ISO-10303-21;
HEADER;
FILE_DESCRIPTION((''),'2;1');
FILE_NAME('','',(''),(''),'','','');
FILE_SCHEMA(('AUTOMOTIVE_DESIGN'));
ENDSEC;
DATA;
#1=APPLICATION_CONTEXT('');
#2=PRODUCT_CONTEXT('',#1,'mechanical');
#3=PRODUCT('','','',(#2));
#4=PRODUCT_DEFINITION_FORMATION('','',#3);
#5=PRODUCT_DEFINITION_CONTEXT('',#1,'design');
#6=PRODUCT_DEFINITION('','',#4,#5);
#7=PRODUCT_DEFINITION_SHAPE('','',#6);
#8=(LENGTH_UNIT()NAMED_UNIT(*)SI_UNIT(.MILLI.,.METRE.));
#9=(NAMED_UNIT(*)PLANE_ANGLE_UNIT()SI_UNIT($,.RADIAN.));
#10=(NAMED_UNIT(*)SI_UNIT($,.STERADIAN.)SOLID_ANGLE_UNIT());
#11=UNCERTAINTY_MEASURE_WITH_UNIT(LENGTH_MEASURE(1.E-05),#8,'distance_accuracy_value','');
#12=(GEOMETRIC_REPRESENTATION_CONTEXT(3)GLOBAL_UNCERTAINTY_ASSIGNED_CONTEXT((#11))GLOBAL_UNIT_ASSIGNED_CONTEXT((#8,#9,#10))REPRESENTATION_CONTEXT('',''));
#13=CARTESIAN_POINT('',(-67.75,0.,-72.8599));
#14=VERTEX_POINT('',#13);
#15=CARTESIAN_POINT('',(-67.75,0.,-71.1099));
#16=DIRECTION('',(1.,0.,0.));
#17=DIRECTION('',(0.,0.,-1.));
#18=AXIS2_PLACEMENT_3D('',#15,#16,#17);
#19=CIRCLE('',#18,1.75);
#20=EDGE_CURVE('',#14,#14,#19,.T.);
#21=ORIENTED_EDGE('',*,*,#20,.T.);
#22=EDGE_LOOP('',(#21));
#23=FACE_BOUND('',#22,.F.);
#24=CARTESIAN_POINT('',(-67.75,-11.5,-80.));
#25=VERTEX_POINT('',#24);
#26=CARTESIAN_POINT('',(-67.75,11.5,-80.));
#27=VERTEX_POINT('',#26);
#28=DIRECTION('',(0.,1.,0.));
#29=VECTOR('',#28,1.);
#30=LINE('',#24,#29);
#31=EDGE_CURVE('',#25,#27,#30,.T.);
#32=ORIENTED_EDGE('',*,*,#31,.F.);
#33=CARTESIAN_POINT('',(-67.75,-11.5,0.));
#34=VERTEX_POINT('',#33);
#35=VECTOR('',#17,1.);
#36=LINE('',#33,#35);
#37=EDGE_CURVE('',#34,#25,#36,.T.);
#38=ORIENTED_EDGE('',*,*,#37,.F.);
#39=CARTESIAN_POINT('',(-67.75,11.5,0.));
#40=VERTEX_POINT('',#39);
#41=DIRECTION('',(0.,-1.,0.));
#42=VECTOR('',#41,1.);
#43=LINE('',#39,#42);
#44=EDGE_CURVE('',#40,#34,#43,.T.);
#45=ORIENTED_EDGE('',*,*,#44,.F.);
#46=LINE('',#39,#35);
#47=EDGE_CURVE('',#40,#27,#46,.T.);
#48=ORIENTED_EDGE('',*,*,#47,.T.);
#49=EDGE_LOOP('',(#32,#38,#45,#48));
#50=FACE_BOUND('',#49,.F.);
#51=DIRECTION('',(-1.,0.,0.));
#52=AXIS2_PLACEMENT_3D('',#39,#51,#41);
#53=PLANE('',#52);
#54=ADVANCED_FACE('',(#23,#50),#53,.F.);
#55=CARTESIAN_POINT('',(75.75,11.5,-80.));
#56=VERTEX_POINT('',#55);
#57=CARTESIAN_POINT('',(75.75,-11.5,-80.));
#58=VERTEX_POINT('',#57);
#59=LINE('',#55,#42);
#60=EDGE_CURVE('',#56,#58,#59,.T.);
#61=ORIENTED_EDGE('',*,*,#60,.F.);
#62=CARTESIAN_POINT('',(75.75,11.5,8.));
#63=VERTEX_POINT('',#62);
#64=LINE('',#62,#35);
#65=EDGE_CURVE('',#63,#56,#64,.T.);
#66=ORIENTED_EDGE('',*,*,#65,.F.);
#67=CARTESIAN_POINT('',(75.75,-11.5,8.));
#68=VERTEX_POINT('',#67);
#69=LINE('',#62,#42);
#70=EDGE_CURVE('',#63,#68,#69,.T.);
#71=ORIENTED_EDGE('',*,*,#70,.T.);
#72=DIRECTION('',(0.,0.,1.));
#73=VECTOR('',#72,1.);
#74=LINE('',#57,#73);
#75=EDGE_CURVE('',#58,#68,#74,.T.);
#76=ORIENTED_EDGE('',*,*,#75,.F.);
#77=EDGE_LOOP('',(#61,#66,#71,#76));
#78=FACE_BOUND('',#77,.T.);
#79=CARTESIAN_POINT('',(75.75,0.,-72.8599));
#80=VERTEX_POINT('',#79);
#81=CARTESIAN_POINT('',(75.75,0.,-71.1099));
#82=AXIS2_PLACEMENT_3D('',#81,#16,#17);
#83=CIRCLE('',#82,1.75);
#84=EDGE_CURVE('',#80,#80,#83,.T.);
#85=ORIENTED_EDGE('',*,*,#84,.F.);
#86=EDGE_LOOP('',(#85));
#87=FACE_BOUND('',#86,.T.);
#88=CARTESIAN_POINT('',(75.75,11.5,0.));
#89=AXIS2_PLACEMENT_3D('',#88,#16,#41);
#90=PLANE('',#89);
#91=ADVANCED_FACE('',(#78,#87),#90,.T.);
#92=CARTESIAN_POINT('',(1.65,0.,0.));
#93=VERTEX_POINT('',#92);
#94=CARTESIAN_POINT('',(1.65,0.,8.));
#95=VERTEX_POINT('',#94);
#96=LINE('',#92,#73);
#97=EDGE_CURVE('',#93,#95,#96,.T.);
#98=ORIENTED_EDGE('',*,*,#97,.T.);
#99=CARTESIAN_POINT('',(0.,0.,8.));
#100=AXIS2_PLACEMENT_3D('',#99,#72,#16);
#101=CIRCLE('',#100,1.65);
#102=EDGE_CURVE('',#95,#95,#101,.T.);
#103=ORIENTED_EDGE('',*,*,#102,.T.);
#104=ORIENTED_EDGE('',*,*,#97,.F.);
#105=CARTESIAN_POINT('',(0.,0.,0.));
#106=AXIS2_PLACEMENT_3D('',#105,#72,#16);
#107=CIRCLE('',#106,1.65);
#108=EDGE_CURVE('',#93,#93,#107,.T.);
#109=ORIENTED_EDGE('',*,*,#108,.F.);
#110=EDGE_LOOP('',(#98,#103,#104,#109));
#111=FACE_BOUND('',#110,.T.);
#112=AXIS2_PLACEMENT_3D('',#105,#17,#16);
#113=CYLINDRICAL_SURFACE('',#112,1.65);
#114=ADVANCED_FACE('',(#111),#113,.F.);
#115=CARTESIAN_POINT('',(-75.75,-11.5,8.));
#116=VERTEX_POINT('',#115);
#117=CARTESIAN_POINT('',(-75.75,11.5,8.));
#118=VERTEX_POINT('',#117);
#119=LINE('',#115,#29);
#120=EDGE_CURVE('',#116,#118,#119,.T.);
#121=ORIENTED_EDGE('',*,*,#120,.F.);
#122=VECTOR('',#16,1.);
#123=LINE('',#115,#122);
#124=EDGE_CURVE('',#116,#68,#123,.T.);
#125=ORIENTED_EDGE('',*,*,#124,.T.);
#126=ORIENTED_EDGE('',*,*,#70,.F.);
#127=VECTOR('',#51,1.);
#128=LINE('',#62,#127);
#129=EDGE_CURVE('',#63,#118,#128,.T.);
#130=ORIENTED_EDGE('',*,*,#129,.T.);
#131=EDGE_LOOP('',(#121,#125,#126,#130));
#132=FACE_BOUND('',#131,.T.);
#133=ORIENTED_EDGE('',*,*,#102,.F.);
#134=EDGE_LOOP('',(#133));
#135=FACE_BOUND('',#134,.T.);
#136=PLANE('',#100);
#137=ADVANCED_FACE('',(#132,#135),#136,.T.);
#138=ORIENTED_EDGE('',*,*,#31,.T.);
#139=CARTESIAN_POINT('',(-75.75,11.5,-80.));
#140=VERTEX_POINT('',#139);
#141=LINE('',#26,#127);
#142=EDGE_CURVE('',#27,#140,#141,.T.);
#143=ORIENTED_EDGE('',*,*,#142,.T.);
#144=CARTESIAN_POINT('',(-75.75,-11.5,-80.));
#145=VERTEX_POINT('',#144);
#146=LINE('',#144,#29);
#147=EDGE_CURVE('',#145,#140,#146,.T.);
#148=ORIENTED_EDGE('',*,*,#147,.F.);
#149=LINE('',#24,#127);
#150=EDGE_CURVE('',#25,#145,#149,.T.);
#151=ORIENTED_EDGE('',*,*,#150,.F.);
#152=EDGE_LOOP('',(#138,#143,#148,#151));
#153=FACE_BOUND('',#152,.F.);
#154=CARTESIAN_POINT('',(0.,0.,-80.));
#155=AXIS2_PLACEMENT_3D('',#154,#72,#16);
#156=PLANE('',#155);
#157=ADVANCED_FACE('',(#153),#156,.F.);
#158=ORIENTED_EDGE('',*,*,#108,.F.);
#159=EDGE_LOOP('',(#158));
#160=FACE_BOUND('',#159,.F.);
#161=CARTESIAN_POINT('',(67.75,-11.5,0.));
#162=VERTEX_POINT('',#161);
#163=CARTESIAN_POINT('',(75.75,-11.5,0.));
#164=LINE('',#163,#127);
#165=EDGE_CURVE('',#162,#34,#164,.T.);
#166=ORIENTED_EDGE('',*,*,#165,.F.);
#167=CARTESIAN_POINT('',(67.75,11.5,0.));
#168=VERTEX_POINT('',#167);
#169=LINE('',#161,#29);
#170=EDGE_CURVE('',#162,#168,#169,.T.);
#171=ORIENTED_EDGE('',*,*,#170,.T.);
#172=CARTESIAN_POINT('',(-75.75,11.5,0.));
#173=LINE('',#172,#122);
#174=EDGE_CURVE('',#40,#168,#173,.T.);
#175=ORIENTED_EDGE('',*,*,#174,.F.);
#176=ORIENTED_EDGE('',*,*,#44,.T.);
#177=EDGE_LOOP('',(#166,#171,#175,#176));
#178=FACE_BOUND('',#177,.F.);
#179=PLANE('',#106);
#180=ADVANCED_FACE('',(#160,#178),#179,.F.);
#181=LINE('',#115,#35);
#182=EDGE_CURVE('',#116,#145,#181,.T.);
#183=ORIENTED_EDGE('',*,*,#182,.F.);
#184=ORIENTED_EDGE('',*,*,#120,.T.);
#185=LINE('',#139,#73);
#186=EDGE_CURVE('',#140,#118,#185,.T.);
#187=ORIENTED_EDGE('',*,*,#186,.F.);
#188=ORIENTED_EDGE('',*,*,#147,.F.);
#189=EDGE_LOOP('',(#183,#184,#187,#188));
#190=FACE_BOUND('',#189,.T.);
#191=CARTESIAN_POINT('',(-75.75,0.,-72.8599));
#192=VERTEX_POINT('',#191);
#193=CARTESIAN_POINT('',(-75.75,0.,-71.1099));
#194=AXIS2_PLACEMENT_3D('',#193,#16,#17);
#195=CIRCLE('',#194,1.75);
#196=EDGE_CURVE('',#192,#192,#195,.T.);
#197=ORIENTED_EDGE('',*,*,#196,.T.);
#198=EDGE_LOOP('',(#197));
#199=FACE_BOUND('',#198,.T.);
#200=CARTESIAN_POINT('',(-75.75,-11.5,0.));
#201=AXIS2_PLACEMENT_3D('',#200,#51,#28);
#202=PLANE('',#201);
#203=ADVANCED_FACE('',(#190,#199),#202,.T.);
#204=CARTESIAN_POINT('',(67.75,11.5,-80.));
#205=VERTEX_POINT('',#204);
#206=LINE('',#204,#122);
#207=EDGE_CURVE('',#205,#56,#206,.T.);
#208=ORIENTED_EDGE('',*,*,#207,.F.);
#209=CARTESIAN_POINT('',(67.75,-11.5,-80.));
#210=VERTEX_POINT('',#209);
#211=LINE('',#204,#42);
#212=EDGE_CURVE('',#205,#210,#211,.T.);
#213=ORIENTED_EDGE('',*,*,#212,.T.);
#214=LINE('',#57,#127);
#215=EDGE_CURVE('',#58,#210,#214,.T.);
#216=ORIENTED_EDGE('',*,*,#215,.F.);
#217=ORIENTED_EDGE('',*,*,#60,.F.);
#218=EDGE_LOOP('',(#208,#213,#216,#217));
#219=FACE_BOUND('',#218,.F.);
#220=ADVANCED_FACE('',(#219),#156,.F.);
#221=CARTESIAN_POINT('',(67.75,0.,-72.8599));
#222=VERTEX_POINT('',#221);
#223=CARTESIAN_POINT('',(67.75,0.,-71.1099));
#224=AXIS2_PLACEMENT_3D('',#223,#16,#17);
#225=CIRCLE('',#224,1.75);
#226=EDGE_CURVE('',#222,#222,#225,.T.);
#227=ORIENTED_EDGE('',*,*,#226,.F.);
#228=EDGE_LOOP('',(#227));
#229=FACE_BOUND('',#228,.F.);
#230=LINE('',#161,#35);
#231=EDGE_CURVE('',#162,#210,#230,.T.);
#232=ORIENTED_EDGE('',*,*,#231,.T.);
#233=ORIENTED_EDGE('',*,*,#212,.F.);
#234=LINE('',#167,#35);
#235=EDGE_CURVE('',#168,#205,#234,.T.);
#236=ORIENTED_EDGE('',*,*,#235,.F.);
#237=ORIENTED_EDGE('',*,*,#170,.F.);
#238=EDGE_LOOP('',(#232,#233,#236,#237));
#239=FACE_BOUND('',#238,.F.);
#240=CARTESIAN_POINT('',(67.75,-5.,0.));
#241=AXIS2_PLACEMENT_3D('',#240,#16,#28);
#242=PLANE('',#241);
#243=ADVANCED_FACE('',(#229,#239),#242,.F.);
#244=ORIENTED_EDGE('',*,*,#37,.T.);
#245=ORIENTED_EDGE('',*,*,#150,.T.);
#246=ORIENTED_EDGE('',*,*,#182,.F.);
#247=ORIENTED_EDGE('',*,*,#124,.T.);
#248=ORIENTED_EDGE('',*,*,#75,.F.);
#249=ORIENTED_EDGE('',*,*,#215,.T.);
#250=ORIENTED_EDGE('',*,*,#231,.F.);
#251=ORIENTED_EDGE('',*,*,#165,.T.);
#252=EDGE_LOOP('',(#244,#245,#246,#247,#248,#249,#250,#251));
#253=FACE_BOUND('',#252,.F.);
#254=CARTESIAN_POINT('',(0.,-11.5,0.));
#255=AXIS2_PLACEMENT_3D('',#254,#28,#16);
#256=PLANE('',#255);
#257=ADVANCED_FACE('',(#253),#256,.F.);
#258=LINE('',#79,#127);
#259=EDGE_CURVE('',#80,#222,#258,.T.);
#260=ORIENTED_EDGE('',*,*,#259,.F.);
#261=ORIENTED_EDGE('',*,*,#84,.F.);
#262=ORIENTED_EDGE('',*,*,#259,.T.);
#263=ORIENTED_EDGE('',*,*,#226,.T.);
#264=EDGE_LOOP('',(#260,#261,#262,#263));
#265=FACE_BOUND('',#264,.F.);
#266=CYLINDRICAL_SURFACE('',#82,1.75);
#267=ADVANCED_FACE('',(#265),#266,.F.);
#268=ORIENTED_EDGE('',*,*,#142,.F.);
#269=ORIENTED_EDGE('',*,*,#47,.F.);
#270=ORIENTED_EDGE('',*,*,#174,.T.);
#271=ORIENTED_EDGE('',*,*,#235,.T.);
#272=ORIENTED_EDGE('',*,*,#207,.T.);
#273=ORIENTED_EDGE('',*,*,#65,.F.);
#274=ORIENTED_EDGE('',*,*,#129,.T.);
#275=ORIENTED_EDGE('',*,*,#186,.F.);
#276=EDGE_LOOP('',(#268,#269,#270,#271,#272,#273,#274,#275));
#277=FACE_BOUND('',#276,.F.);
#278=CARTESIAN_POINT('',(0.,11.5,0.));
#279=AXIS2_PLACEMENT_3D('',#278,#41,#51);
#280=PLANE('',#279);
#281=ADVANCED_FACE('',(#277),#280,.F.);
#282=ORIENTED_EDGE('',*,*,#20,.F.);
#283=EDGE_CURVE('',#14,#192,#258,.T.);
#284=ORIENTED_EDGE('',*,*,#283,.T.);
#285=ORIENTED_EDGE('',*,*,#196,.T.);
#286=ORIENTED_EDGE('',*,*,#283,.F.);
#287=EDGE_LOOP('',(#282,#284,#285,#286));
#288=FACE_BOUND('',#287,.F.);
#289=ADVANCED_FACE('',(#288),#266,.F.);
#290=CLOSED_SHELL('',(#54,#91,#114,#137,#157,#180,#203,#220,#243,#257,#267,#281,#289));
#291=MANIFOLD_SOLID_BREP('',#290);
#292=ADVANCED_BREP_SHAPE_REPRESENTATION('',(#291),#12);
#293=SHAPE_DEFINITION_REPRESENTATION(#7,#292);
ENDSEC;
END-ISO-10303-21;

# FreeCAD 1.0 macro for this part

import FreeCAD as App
import Part
import Sketcher

V = App.Vector


def add_polygon(sketch, points):
    """Adds a closed chain of lines whose ends are joined by coincident constraints."""
    first, n = sketch.GeometryCount, len(points)
    for a, b in zip(points, points[1:] + points[:1]):
        sketch.addGeometry(Part.LineSegment(App.Vector(*a, 0), App.Vector(*b, 0)), False)
    for i in range(n):
        sketch.addConstraint(Sketcher.Constraint("Coincident", first + i, 2, first + (i + 1) % n, 1))

doc = App.newDocument("Part")
body = doc.addObject("PartDesign::Body", "Body")

# Sketch on XY plane
sketch1 = body.newObject("Sketcher::SketchObject", "Sketch")
sketch1.AttachmentSupport = (doc.getObject("XY_Plane"), [""])
sketch1.MapMode = "FlatFace"
add_polygon(sketch1, [(75.8, -11.5), (75.8, 11.5), (-75.8, 11.5), (-75.8, -11.5)])  # lines 0-3
sketch1.addGeometry(Part.Circle(V(0, 0, 0), V(0, 0, 1), 1.6), False)  # 4
sketch1.addConstraint([
    Sketcher.Constraint("Vertical", 0),
    Sketcher.Constraint("Horizontal", 1),
    Sketcher.Constraint("Vertical", 2),
    Sketcher.Constraint("Horizontal", 3),
    Sketcher.Constraint("Coincident", 4, 3, -1, 1),
    Sketcher.Constraint("Symmetric", 0, 2, 2, 2, -1, 1),
    Sketcher.Constraint("Diameter", 4, 3.3),
    Sketcher.Constraint("DistanceY", 0, 1, 0, 2, 23.0),
    Sketcher.Constraint("DistanceX", 1, 2, 1, 1, 151.5),
])
pad1 = body.newObject("PartDesign::Pad", "Pad")
pad1.Profile = sketch1
pad1.Length = 8

# Sketch on XY plane
sketch2 = body.newObject("Sketcher::SketchObject", "Sketch001")
sketch2.AttachmentSupport = (doc.getObject("XY_Plane"), [""])
sketch2.MapMode = "FlatFace"
add_polygon(sketch2, [(68, -12), (76, -12), (76, 12), (68, 12)])  # lines 0-3
add_polygon(sketch2, [(-68, 12), (-76, 12), (-76, -12), (-68, -12)])  # lines 4-7
sketch2.addConstraint([
    Sketcher.Constraint("Horizontal", 0),
    Sketcher.Constraint("Vertical", 1),
    Sketcher.Constraint("Horizontal", 2),
    Sketcher.Constraint("Vertical", 3),
    Sketcher.Constraint("Horizontal", 4),
    Sketcher.Constraint("Vertical", 5),
    Sketcher.Constraint("Horizontal", 6),
    Sketcher.Constraint("Vertical", 7),
    Sketcher.Constraint("Symmetric", 0, 2, 4, 2, -1, 1),
    Sketcher.Constraint("Symmetric", 2, 2, 6, 2, -1, 1),
    Sketcher.Constraint("Horizontal", 2, 2, 4, 2),
    Sketcher.Constraint("DistanceX", 0, 1, 0, 2, 8.0),
    Sketcher.Constraint("DistanceY", 1, 1, 1, 2, 23.0),
    Sketcher.Constraint("DistanceX", 4, 2, 2, 2, 143.5),
])
pad2 = body.newObject("PartDesign::Pad", "Pad001")
pad2.Profile = sketch2
pad2.Length = 80
pad2.Reversed = True

# Sketch on YZ plane
sketch3 = body.newObject("Sketcher::SketchObject", "Sketch002")
sketch3.AttachmentSupport = (doc.getObject("YZ_Plane"), [""])
sketch3.MapMode = "FlatFace"
sketch3.AttachmentOffset = App.Placement(V(0, 0, 75.75), App.Rotation())
sketch3.addGeometry(Part.Circle(V(0, -71.1, 0), V(0, 0, 1), 1.8), False)
sketch3.addConstraint([
    Sketcher.Constraint("PointOnObject", 0, 3, -2),
    Sketcher.Constraint("Diameter", 0, 3.5),
    Sketcher.Constraint("DistanceY", 0, 3, -1, 1, 71.11),
])
pocket1 = body.newObject("PartDesign::Pocket", "Pocket")
pocket1.Profile = sketch3
pocket1.Length = 800

doc.recompute()
